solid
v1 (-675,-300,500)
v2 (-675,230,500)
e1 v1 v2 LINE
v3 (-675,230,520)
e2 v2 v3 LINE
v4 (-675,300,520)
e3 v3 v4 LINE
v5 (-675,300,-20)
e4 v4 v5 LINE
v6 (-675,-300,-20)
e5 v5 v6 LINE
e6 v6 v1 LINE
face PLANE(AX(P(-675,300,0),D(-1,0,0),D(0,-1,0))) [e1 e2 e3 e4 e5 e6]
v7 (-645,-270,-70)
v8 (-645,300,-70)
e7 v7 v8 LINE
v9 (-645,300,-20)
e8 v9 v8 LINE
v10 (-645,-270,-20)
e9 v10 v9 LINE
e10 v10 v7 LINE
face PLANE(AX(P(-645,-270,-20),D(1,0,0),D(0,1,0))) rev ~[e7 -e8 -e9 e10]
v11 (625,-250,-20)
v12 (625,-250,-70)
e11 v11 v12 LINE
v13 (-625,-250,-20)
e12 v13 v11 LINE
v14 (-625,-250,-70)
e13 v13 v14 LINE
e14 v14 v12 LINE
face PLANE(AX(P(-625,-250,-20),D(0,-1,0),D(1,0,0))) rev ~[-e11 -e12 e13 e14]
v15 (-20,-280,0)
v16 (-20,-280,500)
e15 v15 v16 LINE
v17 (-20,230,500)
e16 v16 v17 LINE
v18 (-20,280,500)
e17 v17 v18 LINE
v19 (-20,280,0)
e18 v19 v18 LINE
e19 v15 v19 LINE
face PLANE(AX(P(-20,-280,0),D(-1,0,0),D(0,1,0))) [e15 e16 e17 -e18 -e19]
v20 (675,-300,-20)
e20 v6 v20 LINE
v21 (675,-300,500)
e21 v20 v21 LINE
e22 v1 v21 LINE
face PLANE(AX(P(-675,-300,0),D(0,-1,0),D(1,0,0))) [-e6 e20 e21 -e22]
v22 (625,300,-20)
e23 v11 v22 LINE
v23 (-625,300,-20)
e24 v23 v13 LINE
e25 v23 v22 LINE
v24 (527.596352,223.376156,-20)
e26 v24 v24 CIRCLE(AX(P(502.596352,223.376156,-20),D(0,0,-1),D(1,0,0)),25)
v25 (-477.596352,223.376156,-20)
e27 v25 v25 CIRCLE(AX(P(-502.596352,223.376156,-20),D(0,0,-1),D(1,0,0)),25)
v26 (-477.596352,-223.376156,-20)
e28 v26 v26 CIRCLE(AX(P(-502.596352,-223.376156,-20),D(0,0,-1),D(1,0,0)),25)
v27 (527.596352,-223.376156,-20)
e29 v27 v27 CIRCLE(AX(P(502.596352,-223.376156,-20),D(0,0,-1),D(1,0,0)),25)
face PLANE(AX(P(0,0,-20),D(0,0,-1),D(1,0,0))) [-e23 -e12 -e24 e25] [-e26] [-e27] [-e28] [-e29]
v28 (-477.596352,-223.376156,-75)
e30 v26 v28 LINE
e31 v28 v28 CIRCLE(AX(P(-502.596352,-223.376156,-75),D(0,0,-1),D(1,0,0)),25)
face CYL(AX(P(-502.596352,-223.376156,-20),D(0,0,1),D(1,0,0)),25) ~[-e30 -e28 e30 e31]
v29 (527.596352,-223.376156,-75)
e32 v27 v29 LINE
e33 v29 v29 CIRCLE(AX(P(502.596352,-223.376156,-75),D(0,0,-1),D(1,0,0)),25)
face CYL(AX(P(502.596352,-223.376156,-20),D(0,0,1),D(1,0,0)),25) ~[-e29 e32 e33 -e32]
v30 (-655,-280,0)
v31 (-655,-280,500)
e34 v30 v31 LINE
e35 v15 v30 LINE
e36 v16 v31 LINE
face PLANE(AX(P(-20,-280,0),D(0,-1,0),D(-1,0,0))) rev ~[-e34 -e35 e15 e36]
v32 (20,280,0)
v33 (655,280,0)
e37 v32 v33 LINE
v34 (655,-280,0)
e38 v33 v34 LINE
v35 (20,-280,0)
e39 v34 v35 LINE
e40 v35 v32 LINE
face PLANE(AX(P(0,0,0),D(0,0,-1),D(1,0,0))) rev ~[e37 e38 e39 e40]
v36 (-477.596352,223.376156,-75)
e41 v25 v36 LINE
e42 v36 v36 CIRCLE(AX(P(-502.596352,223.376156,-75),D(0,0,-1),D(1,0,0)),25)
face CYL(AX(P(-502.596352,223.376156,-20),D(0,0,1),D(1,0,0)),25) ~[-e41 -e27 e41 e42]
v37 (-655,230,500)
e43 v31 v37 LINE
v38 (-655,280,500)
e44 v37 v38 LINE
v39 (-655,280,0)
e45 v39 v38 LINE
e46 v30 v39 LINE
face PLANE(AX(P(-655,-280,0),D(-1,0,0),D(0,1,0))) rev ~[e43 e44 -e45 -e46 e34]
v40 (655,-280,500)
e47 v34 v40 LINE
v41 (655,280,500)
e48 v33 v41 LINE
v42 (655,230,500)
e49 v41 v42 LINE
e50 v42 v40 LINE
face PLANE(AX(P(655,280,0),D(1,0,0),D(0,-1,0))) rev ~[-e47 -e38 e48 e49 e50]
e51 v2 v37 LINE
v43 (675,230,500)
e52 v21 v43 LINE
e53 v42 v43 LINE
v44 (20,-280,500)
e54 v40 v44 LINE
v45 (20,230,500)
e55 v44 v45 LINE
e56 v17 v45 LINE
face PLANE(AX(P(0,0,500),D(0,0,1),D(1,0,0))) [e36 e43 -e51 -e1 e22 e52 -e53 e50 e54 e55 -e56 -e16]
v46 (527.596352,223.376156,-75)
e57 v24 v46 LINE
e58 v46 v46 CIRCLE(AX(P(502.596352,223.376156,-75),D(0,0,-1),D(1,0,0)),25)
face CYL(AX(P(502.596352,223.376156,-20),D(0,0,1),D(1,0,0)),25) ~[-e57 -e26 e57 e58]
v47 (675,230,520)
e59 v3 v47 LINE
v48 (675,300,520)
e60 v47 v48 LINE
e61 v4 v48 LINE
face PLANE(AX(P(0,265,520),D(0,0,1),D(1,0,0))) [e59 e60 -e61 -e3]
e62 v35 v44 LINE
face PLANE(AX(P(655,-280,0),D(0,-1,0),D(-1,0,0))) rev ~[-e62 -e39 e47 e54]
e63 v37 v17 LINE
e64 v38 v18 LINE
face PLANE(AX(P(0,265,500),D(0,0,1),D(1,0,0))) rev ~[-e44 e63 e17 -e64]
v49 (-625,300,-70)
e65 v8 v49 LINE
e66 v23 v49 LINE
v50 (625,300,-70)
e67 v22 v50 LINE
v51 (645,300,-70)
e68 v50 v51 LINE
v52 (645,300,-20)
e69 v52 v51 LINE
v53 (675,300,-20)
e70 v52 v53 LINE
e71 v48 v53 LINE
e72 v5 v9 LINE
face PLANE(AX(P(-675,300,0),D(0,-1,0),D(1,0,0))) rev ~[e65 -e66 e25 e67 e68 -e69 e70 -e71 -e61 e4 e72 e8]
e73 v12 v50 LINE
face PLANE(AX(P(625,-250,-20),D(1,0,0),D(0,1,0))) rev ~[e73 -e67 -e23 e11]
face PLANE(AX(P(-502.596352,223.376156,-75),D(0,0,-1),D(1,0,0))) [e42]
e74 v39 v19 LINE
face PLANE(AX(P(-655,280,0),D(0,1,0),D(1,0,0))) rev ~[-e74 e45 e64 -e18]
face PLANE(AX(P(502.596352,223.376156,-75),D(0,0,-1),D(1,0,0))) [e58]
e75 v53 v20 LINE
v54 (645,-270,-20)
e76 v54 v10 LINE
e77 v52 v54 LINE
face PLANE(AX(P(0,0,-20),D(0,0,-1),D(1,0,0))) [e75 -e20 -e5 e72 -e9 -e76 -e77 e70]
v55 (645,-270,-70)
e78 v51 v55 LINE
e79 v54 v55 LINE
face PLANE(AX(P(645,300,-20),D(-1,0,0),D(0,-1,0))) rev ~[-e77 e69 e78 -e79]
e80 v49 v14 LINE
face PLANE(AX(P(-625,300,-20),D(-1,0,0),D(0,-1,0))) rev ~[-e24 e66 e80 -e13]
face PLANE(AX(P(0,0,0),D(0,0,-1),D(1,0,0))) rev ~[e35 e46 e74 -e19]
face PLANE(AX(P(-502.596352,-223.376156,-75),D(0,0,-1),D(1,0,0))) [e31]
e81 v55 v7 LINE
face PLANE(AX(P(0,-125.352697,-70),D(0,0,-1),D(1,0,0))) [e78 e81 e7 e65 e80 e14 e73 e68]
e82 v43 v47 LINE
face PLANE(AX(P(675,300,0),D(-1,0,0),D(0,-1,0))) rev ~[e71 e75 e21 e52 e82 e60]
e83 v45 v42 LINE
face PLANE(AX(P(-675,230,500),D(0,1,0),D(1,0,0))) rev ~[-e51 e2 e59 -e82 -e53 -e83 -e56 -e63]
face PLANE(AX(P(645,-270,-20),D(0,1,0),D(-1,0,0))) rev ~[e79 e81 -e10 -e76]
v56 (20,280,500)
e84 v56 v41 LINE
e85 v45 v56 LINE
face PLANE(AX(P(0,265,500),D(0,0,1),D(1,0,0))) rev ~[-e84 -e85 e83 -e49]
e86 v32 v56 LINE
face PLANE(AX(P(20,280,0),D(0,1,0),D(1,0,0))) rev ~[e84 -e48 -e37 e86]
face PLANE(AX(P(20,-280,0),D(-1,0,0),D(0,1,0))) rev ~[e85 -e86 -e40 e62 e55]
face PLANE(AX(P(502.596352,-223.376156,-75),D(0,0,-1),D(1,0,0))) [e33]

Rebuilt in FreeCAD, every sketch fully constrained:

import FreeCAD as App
import Part
import Sketcher
from FreeCAD import Vector


def add_polygon(sketch, points):
    """Adds a closed chain of lines whose ends are joined by coincident constraints."""
    first, n = sketch.GeometryCount, len(points)
    for a, b in zip(points, points[1:] + points[:1]):
        sketch.addGeometry(Part.LineSegment(App.Vector(*a, 0), App.Vector(*b, 0)), False)
    for i in range(n):
        sketch.addConstraint(Sketcher.Constraint("Coincident", first + i, 2, first + (i + 1) % n, 1))

doc = App.newDocument("Part")
params = doc.addObject("Spreadsheet::Sheet", "Params")
for row, (alias, value) in enumerate([
    ("sketch1_width", "1350 mm"),
    ("sketch1_width2", "635 mm"),
    ("sketch1_height", "600 mm"),
    ("sketch1_height2", "560 mm"),
    ("pad1_length", "500 mm"),
    ("sketch2_width", "1350 mm"),
    ("sketch2_height", "70 mm"),
    ("pad2_length", "20 mm"),
    ("sketch3_width", "1350 mm"),
    ("sketch3_height", "600 mm"),
    ("pad3_length", "20 mm"),
    ("sketch4_diameter", "50 mm"),
    ("pad4_length", "55 mm"),
    ("sketch5_width", "1290 mm"),
    ("sketch5_width2", "20 mm"),
    ("sketch5_height", "570 mm"),
    ("sketch5_height2", "550 mm"),
    ("pad5_length", "50 mm"),
], start=1):
    params.set(f"A{row}", alias)
    params.set(f"B{row}", "=" + value)
    params.setAlias(f"B{row}", alias)

body = doc.addObject("PartDesign::Body", "Body")

# Sketch on XY plane
sketch1 = body.newObject("Sketcher::SketchObject", "Sketch")
sketch1.AttachmentSupport = (doc.getObject("XY_Plane"), [""])
sketch1.MapMode = "FlatFace"
add_polygon(sketch1, [(-675, 300), (-675, -300), (675, -300), (675, 300)])  # lines 0-3
add_polygon(sketch1, [(655, -280), (20, -280), (20, 280), (655, 280)])  # lines 4-7
add_polygon(sketch1, [(-20, -280), (-655, -280), (-655, 280), (-20, 280)])  # lines 8-11
sketch1.addConstraint([
    Sketcher.Constraint("Vertical", 0),
    Sketcher.Constraint("Horizontal", 1),
    Sketcher.Constraint("Vertical", 2),
    Sketcher.Constraint("Horizontal", 3),
    Sketcher.Constraint("Horizontal", 4),
    Sketcher.Constraint("Vertical", 5),
    Sketcher.Constraint("Horizontal", 6),
    Sketcher.Constraint("Vertical", 7),
    Sketcher.Constraint("Horizontal", 8),
    Sketcher.Constraint("Vertical", 9),
    Sketcher.Constraint("Horizontal", 10),
    Sketcher.Constraint("Vertical", 11),
    Sketcher.Constraint("Symmetric", 0, 2, 2, 2, -1, 1),
    Sketcher.Constraint("Symmetric", 6, 2, 8, 2, -1, 1),
    Sketcher.Constraint("Symmetric", 4, 2, 10, 2, -1, 1),
    Sketcher.Constraint("Horizontal", 7, 2, 8, 2),
    Sketcher.Constraint("DistanceX", 1, 1, 1, 2, 1350.0),
    Sketcher.Constraint("DistanceX", 4, 2, 4, 1, 635.0),
    Sketcher.Constraint("DistanceY", 0, 2, 0, 1, 600.0),
    Sketcher.Constraint("DistanceY", 5, 1, 5, 2, 560.0),
    Sketcher.Constraint("DistanceX", -1, 1, 4, 2, 20.0),
])
sketch1.setExpression("Constraints[28]", "Params.sketch1_width")
sketch1.setExpression("Constraints[29]", "Params.sketch1_width2")
sketch1.setExpression("Constraints[30]", "Params.sketch1_height")
sketch1.setExpression("Constraints[31]", "Params.sketch1_height2")
pad1 = body.newObject("PartDesign::Pad", "Pad")
pad1.Profile = sketch1
pad1.setExpression("Length", "Params.pad1_length")

# Sketch on XY plane
sketch2 = body.newObject("Sketcher::SketchObject", "Sketch001")
sketch2.AttachmentSupport = (doc.getObject("XY_Plane"), [""])
sketch2.MapMode = "FlatFace"
sketch2.AttachmentOffset = App.Placement(Vector(0, 0, 500), App.Rotation())
add_polygon(sketch2, [(-675, 300), (-675, 230), (675, 230), (675, 300)])  # lines 0-3
sketch2.addConstraint([
    Sketcher.Constraint("Vertical", 0),
    Sketcher.Constraint("Horizontal", 1),
    Sketcher.Constraint("Vertical", 2),
    Sketcher.Constraint("Horizontal", 3),
    Sketcher.Constraint("DistanceX", 1, 1, 1, 2, 1350.0),
    Sketcher.Constraint("DistanceY", 0, 2, 0, 1, 70.0),
    Sketcher.Constraint("DistanceX", 0, 2, -1, 1, 675.0),
    Sketcher.Constraint("DistanceY", -1, 1, 0, 2, 230.0),
])
sketch2.setExpression("Constraints[8]", "Params.sketch2_width")
sketch2.setExpression("Constraints[9]", "Params.sketch2_height")
pad2 = body.newObject("PartDesign::Pad", "Pad001")
pad2.Profile = sketch2
pad2.setExpression("Length", "Params.pad2_length")

# Sketch on XY plane
sketch3 = body.newObject("Sketcher::SketchObject", "Sketch002")
sketch3.AttachmentSupport = (doc.getObject("XY_Plane"), [""])
sketch3.MapMode = "FlatFace"
add_polygon(sketch3, [(-675, -300), (-675, 300), (675, 300), (675, -300)])  # lines 0-3
sketch3.addConstraint([
    Sketcher.Constraint("Vertical", 0),
    Sketcher.Constraint("Horizontal", 1),
    Sketcher.Constraint("Vertical", 2),
    Sketcher.Constraint("Horizontal", 3),
    Sketcher.Constraint("Symmetric", 0, 2, 2, 2, -1, 1),
    Sketcher.Constraint("DistanceX", 1, 1, 1, 2, 1350.0),
    Sketcher.Constraint("DistanceY", 0, 1, 0, 2, 600.0),
])
sketch3.setExpression("Constraints[9]", "Params.sketch3_width")
sketch3.setExpression("Constraints[10]", "Params.sketch3_height")
pad3 = body.newObject("PartDesign::Pad", "Pad002")
pad3.Profile = sketch3
pad3.setExpression("Length", "Params.pad3_length")
pad3.Reversed = True

# Sketch on XY plane
sketch4 = body.newObject("Sketcher::SketchObject", "Sketch003")
sketch4.AttachmentSupport = (doc.getObject("XY_Plane"), [""])
sketch4.MapMode = "FlatFace"
sketch4.AttachmentOffset = App.Placement(Vector(0, 0, -20), App.Rotation())
sketch4.addGeometry([
    Part.Circle(Vector(-503, -223, 0), Vector(0, 0, 1), 25),
    Part.Circle(Vector(-503, 223, 0), Vector(0, 0, 1), 25),
    Part.Circle(Vector(503, 223, 0), Vector(0, 0, 1), 25),
    Part.Circle(Vector(503, -223, 0), Vector(0, 0, 1), 25),
], False)
sketch4.addConstraint([
    Sketcher.Constraint("Equal", 0, 1),
    Sketcher.Constraint("Equal", 1, 2),
    Sketcher.Constraint("Equal", 2, 3),
    Sketcher.Constraint("Symmetric", 0, 3, 2, 3, -1, 1),
    Sketcher.Constraint("Symmetric", 1, 3, 3, 3, -1, 1),
    Sketcher.Constraint("Symmetric", 1, 3, 2, 3, -2),
    Sketcher.Constraint("Diameter", 0, 50.0),
    Sketcher.Constraint("DistanceY", 0, 3, 1, 3, 446.752312),
    Sketcher.Constraint("DistanceX", 0, 3, -1, 1, 502.596352),
])
sketch4.setExpression("Constraints[6]", "Params.sketch4_diameter")
pad4 = body.newObject("PartDesign::Pad", "Pad003")
pad4.Profile = sketch4
pad4.setExpression("Length", "Params.pad4_length")
pad4.Reversed = True

# Sketch on XY plane
sketch5 = body.newObject("Sketcher::SketchObject", "Sketch004")
sketch5.AttachmentSupport = (doc.getObject("XY_Plane"), [""])
sketch5.MapMode = "FlatFace"
sketch5.AttachmentOffset = App.Placement(Vector(0, 0, -20), App.Rotation())
add_polygon(sketch5, [(645, -270), (-645, -270), (-645, 300), (-625, 300), (-625, -250), (625, -250), (625, 300), (645, 300)])  # lines 0-7
sketch5.addConstraint([
    Sketcher.Constraint("Horizontal", 0),
    Sketcher.Constraint("Vertical", 1),
    Sketcher.Constraint("Horizontal", 2),
    Sketcher.Constraint("Vertical", 3),
    Sketcher.Constraint("Horizontal", 4),
    Sketcher.Constraint("Vertical", 5),
    Sketcher.Constraint("Horizontal", 6),
    Sketcher.Constraint("Vertical", 7),
    Sketcher.Constraint("Symmetric", 2, 2, 5, 2, -2),
    Sketcher.Constraint("Equal", 2, 6),
    Sketcher.Constraint("DistanceX", 0, 2, 0, 1, 1290.0),
    Sketcher.Constraint("DistanceX", 2, 1, 2, 2, 20.0),
    Sketcher.Constraint("DistanceY", 1, 1, 1, 2, 570.0),
    Sketcher.Constraint("DistanceY", 3, 2, 3, 1, 550.0),
    Sketcher.Constraint("DistanceY", 0, 2, -1, 1, 270.0),
])
sketch5.setExpression("Constraints[18]", "Params.sketch5_width")
sketch5.setExpression("Constraints[19]", "Params.sketch5_width2")
sketch5.setExpression("Constraints[20]", "Params.sketch5_height")
sketch5.setExpression("Constraints[21]", "Params.sketch5_height2")
pad5 = body.newObject("PartDesign::Pad", "Pad004")
pad5.Profile = sketch5
pad5.setExpression("Length", "Params.pad5_length")
pad5.Reversed = True

doc.recompute()
